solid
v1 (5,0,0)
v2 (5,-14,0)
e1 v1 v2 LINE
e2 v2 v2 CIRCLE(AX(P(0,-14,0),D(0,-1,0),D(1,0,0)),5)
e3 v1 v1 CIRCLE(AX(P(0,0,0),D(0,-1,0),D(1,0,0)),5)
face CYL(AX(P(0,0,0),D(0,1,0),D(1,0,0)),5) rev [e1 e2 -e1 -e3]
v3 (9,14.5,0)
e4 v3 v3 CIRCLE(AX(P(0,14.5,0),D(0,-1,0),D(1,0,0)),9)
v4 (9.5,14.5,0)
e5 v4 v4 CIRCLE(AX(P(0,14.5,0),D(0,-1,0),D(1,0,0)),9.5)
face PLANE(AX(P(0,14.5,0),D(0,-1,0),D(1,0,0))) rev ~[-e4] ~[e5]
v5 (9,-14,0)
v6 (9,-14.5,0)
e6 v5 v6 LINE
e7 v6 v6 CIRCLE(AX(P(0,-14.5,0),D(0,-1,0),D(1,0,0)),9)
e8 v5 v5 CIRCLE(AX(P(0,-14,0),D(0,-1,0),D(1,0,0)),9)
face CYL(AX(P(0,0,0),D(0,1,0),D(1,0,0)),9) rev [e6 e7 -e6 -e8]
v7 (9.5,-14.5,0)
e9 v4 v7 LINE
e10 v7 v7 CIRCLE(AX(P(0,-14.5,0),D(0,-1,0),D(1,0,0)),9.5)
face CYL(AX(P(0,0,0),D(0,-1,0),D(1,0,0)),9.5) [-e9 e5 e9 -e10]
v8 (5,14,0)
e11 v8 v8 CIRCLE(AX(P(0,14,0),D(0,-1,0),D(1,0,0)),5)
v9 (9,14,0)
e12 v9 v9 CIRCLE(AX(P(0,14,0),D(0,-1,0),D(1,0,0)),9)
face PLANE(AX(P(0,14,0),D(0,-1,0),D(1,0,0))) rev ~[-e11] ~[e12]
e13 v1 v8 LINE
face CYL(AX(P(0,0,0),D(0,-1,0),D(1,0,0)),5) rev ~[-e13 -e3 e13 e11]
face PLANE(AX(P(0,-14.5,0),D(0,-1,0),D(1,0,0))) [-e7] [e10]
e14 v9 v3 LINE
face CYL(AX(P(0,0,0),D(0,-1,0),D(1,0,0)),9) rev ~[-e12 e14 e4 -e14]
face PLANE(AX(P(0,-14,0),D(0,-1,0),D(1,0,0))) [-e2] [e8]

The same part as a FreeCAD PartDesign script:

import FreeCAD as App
import Part
import Sketcher

V = App.Vector
Q = App.Units.Quantity

doc = App.newDocument("Part")
body = doc.addObject("PartDesign::Body", "Body")

# Sketch on XZ plane
sketch1 = body.newObject("Sketcher::SketchObject", "Sketch")
sketch1.AttachmentSupport = (doc.getObject("XZ_Plane"), [""])
sketch1.MapMode = "FlatFace"
sketch1.addGeometry([
    Part.Circle(V(0, 0, 0), V(0, 0, 1), 9),
    Part.Circle(V(0, 0, 0), V(0, 0, 1), 5),
], False)
sketch1.addConstraint([
    Sketcher.Constraint("Coincident", 0, 3, -1, 1),
    Sketcher.Constraint("Coincident", 1, 3, -1, 1),
    Sketcher.Constraint("Diameter", 0, Q("18 mm")),
    Sketcher.Constraint("Diameter", 1, Q("10 mm")),
])
pad1 = body.newObject("PartDesign::Pad", "Pad")
pad1.Profile = sketch1
pad1.Type = "TwoLengths"
pad1.Length = 14
pad1.Length2 = 14

# Sketch on XZ plane
sketch2 = body.newObject("Sketcher::SketchObject", "Sketch001")
sketch2.AttachmentSupport = (doc.getObject("XZ_Plane"), [""])
sketch2.MapMode = "FlatFace"
sketch2.addGeometry([
    Part.Circle(V(0, 0, 0), V(0, 0, 1), 9.5),
    Part.Circle(V(0, 0, 0), V(0, 0, 1), 9),
], False)
sketch2.addConstraint([
    Sketcher.Constraint("Coincident", 0, 3, -1, 1),
    Sketcher.Constraint("Coincident", 1, 3, -1, 1),
    Sketcher.Constraint("Diameter", 0, Q("19 mm")),
    Sketcher.Constraint("Diameter", 1, Q("18 mm")),
])
pad2 = body.newObject("PartDesign::Pad", "Pad001")
pad2.Profile = sketch2
pad2.Type = "TwoLengths"
pad2.Length = 14.5
pad2.Length2 = 14.5

doc.recompute()
